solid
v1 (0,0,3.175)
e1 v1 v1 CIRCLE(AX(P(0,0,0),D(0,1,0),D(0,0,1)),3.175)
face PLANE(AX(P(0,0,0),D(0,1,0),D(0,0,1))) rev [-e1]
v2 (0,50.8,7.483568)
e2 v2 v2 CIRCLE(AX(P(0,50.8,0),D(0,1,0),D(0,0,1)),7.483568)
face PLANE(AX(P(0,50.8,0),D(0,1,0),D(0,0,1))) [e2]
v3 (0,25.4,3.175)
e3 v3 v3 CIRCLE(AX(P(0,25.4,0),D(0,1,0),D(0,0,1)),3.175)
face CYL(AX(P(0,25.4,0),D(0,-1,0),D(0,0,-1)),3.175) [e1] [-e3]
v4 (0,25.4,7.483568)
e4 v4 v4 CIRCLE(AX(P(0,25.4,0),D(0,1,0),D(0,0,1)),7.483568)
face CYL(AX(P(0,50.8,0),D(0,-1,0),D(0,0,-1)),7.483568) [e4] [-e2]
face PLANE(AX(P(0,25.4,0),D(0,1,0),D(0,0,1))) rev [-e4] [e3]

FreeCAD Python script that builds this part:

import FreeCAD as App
import Part
import Sketcher
Q = App.Units.Quantity

doc = App.newDocument("Part")
params = doc.addObject("Spreadsheet::Sheet", "Params")
for row, (alias, value) in enumerate([
    ("sketch1_diameter", "0.25 in"),
    ("pad1_length", "1 in"),
    ("pad2_length", "1 in"),
], start=1):
    params.set(f"A{row}", alias)
    params.set(f"B{row}", "=" + value)
    params.setAlias(f"B{row}", alias)

body = doc.addObject("PartDesign::Body", "Body")

# Sketch on XZ plane
sketch1 = body.newObject("Sketcher::SketchObject", "Sketch")
sketch1.AttachmentSupport = (doc.getObject("XZ_Plane"), [""])
sketch1.MapMode = "FlatFace"
sketch1.addGeometry(Part.Circle(App.Vector(0, 0, 0), App.Vector(0, 0, 1), 3.2), False)
sketch1.addConstraint([
    Sketcher.Constraint("Coincident", 0, 3, -1, 1),
    Sketcher.Constraint("Diameter", 0, Q("0.25 in")),
])
sketch1.setExpression("Constraints[1]", "Params.sketch1_diameter")
pad1 = body.newObject("PartDesign::Pad", "Pad")
pad1.Profile = sketch1
pad1.setExpression("Length", "Params.pad1_length")
pad1.Reversed = True

# Sketch on XZ plane
sketch2 = body.newObject("Sketcher::SketchObject", "Sketch001")
sketch2.AttachmentSupport = (doc.getObject("XZ_Plane"), [""])
sketch2.MapMode = "FlatFace"
sketch2.AttachmentOffset = App.Placement(App.Vector(0, 0, -1 * 25.4), App.Rotation())
sketch2.addGeometry(Part.Circle(App.Vector(0, 0, 0), App.Vector(0, 0, 1), 7), False)
sketch2.addConstraint([
    Sketcher.Constraint("Coincident", 0, 3, -1, 1),
    Sketcher.Constraint("Diameter", 0, Q("14.967137 mm")),
])
pad2 = body.newObject("PartDesign::Pad", "Pad001")
pad2.Profile = sketch2
pad2.setExpression("Length", "Params.pad2_length")
pad2.Reversed = True

doc.recompute()
